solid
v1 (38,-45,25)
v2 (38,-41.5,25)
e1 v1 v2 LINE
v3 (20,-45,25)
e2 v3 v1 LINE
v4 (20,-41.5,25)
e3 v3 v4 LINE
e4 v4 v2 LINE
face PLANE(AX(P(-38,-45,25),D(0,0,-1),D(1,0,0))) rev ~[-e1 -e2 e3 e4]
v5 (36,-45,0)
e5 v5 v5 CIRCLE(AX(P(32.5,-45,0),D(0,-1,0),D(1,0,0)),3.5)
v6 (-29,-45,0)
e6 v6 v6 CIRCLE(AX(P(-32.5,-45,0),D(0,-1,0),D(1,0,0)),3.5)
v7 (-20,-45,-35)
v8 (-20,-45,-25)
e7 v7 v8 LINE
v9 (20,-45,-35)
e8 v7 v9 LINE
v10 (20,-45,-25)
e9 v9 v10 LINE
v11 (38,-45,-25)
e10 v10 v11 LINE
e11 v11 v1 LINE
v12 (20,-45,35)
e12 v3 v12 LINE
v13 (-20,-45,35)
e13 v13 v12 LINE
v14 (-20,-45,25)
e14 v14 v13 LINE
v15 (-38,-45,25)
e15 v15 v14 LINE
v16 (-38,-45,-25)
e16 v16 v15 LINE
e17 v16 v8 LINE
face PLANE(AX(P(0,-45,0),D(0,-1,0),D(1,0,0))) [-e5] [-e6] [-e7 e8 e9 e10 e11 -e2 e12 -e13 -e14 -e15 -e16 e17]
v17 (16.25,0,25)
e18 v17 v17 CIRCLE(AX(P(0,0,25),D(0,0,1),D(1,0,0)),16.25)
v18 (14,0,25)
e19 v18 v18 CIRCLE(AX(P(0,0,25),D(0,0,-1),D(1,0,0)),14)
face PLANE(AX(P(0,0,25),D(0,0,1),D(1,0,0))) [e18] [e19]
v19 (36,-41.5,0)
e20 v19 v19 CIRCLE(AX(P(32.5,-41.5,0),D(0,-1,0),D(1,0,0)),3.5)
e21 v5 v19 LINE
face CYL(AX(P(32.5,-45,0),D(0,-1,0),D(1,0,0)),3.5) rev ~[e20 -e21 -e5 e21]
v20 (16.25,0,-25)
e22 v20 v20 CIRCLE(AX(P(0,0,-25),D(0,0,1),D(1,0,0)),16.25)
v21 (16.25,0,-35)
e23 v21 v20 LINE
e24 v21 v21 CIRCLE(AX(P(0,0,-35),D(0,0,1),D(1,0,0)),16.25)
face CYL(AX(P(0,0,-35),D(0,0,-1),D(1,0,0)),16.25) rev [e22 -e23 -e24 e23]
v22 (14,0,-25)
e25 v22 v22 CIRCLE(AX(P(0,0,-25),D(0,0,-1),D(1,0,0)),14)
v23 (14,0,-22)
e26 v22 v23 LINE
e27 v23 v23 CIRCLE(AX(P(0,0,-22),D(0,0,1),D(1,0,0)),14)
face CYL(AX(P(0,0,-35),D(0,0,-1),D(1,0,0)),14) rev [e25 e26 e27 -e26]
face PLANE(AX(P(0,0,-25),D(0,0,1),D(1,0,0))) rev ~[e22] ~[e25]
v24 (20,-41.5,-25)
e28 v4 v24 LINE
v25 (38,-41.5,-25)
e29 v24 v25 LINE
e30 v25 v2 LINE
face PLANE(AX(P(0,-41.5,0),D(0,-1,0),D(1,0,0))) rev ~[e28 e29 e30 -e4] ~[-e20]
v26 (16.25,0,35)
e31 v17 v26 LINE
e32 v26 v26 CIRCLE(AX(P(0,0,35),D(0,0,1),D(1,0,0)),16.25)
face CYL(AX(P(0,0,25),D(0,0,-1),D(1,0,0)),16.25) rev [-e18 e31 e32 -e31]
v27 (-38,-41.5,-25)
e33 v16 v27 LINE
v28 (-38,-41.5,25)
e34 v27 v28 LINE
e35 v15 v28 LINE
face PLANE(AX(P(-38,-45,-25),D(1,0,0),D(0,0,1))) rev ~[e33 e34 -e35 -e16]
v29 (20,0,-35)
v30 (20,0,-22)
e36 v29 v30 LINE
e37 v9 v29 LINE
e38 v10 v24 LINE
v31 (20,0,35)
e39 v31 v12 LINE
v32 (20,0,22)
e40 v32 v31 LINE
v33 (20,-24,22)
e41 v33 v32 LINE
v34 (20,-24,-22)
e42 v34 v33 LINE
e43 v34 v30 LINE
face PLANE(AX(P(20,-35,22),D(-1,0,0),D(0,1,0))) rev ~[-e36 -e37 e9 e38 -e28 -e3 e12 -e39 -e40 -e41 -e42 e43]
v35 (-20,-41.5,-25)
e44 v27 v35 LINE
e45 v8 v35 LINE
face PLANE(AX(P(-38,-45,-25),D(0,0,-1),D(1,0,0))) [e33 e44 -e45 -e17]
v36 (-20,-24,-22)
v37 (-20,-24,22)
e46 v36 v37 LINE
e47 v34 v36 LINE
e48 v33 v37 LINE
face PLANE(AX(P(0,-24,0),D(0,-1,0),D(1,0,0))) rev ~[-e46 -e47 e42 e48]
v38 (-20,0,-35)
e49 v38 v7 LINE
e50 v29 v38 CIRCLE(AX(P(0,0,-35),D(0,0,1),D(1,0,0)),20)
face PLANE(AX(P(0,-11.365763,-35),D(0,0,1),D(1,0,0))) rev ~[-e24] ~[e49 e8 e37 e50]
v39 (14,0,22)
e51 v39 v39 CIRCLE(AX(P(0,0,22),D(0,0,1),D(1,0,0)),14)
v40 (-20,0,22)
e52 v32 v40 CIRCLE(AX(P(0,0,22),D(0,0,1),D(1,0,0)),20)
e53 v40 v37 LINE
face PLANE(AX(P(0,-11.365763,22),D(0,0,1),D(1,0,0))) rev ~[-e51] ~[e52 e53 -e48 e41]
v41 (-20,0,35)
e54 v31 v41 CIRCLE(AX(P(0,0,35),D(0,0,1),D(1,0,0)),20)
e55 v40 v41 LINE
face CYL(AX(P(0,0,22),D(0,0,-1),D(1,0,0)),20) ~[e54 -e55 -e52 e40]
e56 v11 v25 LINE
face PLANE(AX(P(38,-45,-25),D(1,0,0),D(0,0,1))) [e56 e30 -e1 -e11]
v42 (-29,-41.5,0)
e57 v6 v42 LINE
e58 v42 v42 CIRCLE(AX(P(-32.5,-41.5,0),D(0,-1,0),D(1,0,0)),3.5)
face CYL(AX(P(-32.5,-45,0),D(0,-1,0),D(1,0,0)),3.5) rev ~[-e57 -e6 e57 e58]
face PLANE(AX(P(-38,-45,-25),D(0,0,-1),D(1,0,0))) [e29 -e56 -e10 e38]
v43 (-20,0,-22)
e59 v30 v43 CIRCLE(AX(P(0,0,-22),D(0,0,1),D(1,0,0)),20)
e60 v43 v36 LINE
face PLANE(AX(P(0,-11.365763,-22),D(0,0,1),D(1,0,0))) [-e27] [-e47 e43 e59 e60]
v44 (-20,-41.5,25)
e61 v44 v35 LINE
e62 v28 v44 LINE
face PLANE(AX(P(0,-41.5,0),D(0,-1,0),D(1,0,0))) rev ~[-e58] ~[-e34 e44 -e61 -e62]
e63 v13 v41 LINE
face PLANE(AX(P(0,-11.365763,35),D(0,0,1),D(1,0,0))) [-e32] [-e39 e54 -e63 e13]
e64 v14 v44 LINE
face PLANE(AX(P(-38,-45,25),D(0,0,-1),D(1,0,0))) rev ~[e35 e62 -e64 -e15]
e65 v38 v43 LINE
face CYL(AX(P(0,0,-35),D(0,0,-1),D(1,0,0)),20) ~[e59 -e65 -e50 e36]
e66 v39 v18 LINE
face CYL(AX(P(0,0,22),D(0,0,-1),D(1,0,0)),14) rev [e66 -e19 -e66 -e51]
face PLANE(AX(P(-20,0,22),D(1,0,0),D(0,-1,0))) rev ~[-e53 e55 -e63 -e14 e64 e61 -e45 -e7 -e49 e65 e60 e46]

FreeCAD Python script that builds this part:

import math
import FreeCAD as App
import Part
import Sketcher
Q = App.Units.Quantity

doc = App.newDocument("Part")
params = doc.addObject("Spreadsheet::Sheet", "Params")
for row, (alias, value) in enumerate([
    ("sketch1_diameter", "7 mm"),
    ("sketch1_width", "76 mm"),
    ("sketch1_height", "50 mm"),
    ("pad1_length", "3.5 mm"),
    ("sketch2_diameter", "32.5 mm"),
    ("pad2_length", "10 mm"),
    ("sketch3_diameter", "28 mm"),
    ("sketch3_radius", "20 mm"),
    ("sketch3_height", "35 mm"),
    ("pad3_length", "13 mm"),
    ("sketch4_diameter", "32.5 mm"),
    ("pad4_length", "10 mm"),
    ("sketch5_diameter", "28 mm"),
    ("sketch5_radius", "20 mm"),
    ("sketch5_height", "35 mm"),
    ("pad5_length", "13 mm"),
    ("sketch6_width", "40 mm"),
    ("sketch6_height", "70 mm"),
    ("pad6_length", "21 mm"),
], start=1):
    params.set(f"A{row}", alias)
    params.set(f"B{row}", "=" + value)
    params.setAlias(f"B{row}", alias)

body = doc.addObject("PartDesign::Body", "Body")

# Sketch on XY plane
sketch1 = body.newObject("Sketcher::SketchObject", "Sketch")
sketch1.AttachmentSupport = (doc.getObject("XY_Plane"), [""])
sketch1.MapMode = "FlatFace"
sketch1.addGeometry([
    Part.LineSegment(App.Vector(-38, 25, 0), App.Vector(-38, -25, 0)),  # 0
    Part.LineSegment(App.Vector(-38, -25, 0), App.Vector(38, -25, 0)),  # 1
    Part.LineSegment(App.Vector(38, -25, 0), App.Vector(38, 25, 0)),  # 2
    Part.LineSegment(App.Vector(38, 25, 0), App.Vector(-38, 25, 0)),  # 3
    Part.Circle(App.Vector(-32.5, 0, 0), App.Vector(0, 0, 1), 3.5),  # 4
    Part.Circle(App.Vector(32.5, 0, 0), App.Vector(0, 0, 1), 3.5),  # 5
], False)
sketch1.addConstraint([
    Sketcher.Constraint("Coincident", 0, 2, 1, 1),
    Sketcher.Constraint("Coincident", 1, 2, 2, 1),
    Sketcher.Constraint("Coincident", 2, 2, 3, 1),
    Sketcher.Constraint("Coincident", 3, 2, 0, 1),
    Sketcher.Constraint("Vertical", 0),
    Sketcher.Constraint("Horizontal", 1),
    Sketcher.Constraint("Vertical", 2),
    Sketcher.Constraint("Horizontal", 3),
    Sketcher.Constraint("Equal", 4, 5),
    Sketcher.Constraint("Symmetric", 4, 3, 5, 3, -1, 1),
    Sketcher.Constraint("Symmetric", 0, 2, 2, 2, -1, 1),
    Sketcher.Constraint("PointOnObject", 4, 3, -1),
    Sketcher.Constraint("Diameter", 4, Q("7 mm")),
    Sketcher.Constraint("DistanceX", 1, 1, 1, 2, Q("76 mm")),
    Sketcher.Constraint("DistanceY", 0, 2, 0, 1, Q("50 mm")),
    Sketcher.Constraint("DistanceX", 4, 3, 5, 3, Q("65 mm")),
])
sketch1.setExpression("Constraints[12]", "Params.sketch1_diameter")
sketch1.setExpression("Constraints[13]", "Params.sketch1_width")
sketch1.setExpression("Constraints[14]", "Params.sketch1_height")
pad1 = body.newObject("PartDesign::Pad", "Pad")
pad1.Profile = sketch1
pad1.setExpression("Length", "Params.pad1_length")
pad1.Reversed = True
body2 = doc.addObject("PartDesign::Body", "Body001")
doc.recompute()

body.Placement = App.Placement(App.Vector(0, 0, 0), App.Rotation(App.Vector(1, 0, 0), 90))
boolean = body2.newObject("PartDesign::Boolean", "Boolean")
boolean.Type = "Fuse"
boolean.addObjects([body])
body3 = doc.addObject("PartDesign::Body", "Body002")
doc.recompute()

body2.Placement = App.Placement(App.Vector(0, -45, 0), App.Rotation(App.Vector(0, 0, 1), 0))
boolean2 = body3.newObject("PartDesign::Boolean", "Boolean001")
boolean2.Type = "Fuse"
boolean2.addObjects([body2])
body4 = doc.addObject("PartDesign::Body", "Body003")

# Sketch on XY plane
sketch2 = body4.newObject("Sketcher::SketchObject", "Sketch001")
sketch2.AttachmentSupport = (doc.getObject("XY_Plane003"), [""])
sketch2.MapMode = "FlatFace"
sketch2.addGeometry(Part.Circle(App.Vector(0, 0, 0), App.Vector(0, 0, 1), 16), False)
sketch2.addConstraint([
    Sketcher.Constraint("Coincident", 0, 3, -1, 1),
    Sketcher.Constraint("Diameter", 0, Q("32.5 mm")),
])
sketch2.setExpression("Constraints[1]", "Params.sketch2_diameter")
pad2 = body4.newObject("PartDesign::Pad", "Pad001")
pad2.Profile = sketch2
pad2.setExpression("Length", "Params.pad2_length")
body5 = doc.addObject("PartDesign::Body", "Body004")

# Sketch on XY plane
sketch3 = body5.newObject("Sketcher::SketchObject", "Sketch002")
sketch3.AttachmentSupport = (doc.getObject("XY_Plane004"), [""])
sketch3.MapMode = "FlatFace"
sketch3.addGeometry([
    Part.ArcOfCircle(Part.Circle(App.Vector(0, 0, 0), App.Vector(0, 0, 1), 20), math.radians(0), math.radians(180)),  # 0
    Part.LineSegment(App.Vector(-20, 0, 0), App.Vector(-20, -35, 0)),  # 1
    Part.LineSegment(App.Vector(-20, -35, 0), App.Vector(20, -35, 0)),  # 2
    Part.LineSegment(App.Vector(20, -35, 0), App.Vector(20, 0, 0)),  # 3
    Part.Circle(App.Vector(0, 0, 0), App.Vector(0, 0, 1), 14),  # 4
], False)
sketch3.addConstraint([
    Sketcher.Constraint("Tangent", 0, 2, 1, 1),
    Sketcher.Constraint("Coincident", 1, 2, 2, 1),
    Sketcher.Constraint("Coincident", 2, 2, 3, 1),
    Sketcher.Constraint("Tangent", 3, 2, 0, 1),
    Sketcher.Constraint("Vertical", 1),
    Sketcher.Constraint("Horizontal", 2),
    Sketcher.Constraint("Vertical", 3),
    Sketcher.Constraint("Coincident", 0, 3, -1, 1),
    Sketcher.Constraint("Coincident", 4, 3, -1, 1),
    Sketcher.Constraint("Diameter", 4, Q("28 mm")),
    Sketcher.Constraint("Radius", 0, Q("20 mm")),
    Sketcher.Constraint("DistanceY", 1, 2, 1, 1, Q("35 mm")),
])
sketch3.setExpression("Constraints[9]", "Params.sketch3_diameter")
sketch3.setExpression("Constraints[10]", "Params.sketch3_radius")
sketch3.setExpression("Constraints[11]", "Params.sketch3_height")
pad3 = body5.newObject("PartDesign::Pad", "Pad002")
pad3.Profile = sketch3
pad3.setExpression("Length", "Params.pad3_length")
doc.recompute()

boolean3 = body5.newObject("PartDesign::Boolean", "Boolean002")
boolean3.Type = "Cut"
boolean3.addObjects([body4])
body6 = doc.addObject("PartDesign::Body", "Body005")
doc.recompute()

body5.Placement = App.Placement(App.Vector(0, 0, -35), App.Rotation(App.Vector(0, 0, 1), 0))
boolean4 = body6.newObject("PartDesign::Boolean", "Boolean003")
boolean4.Type = "Fuse"
boolean4.addObjects([body5])
body7 = doc.addObject("PartDesign::Body", "Body006")

# Sketch on XY plane
sketch4 = body7.newObject("Sketcher::SketchObject", "Sketch003")
sketch4.AttachmentSupport = (doc.getObject("XY_Plane006"), [""])
sketch4.MapMode = "FlatFace"
sketch4.AttachmentOffset = App.Placement(App.Vector(0, 0, 3), App.Rotation())
sketch4.addGeometry(Part.Circle(App.Vector(0, 0, 0), App.Vector(0, 0, 1), 16), False)
sketch4.addConstraint([
    Sketcher.Constraint("Coincident", 0, 3, -1, 1),
    Sketcher.Constraint("Diameter", 0, Q("32.5 mm")),
])
sketch4.setExpression("Constraints[1]", "Params.sketch4_diameter")
pad4 = body7.newObject("PartDesign::Pad", "Pad003")
pad4.Profile = sketch4
pad4.setExpression("Length", "Params.pad4_length")
body8 = doc.addObject("PartDesign::Body", "Body007")

# Sketch on XY plane
sketch5 = body8.newObject("Sketcher::SketchObject", "Sketch004")
sketch5.AttachmentSupport = (doc.getObject("XY_Plane007"), [""])
sketch5.MapMode = "FlatFace"
sketch5.addGeometry([
    Part.ArcOfCircle(Part.Circle(App.Vector(0, 0, 0), App.Vector(0, 0, 1), 20), math.radians(0), math.radians(180)),  # 0
    Part.LineSegment(App.Vector(-20, 0, 0), App.Vector(-20, -35, 0)),  # 1
    Part.LineSegment(App.Vector(-20, -35, 0), App.Vector(20, -35, 0)),  # 2
    Part.LineSegment(App.Vector(20, -35, 0), App.Vector(20, 0, 0)),  # 3
    Part.Circle(App.Vector(0, 0, 0), App.Vector(0, 0, 1), 14),  # 4
], False)
sketch5.addConstraint([
    Sketcher.Constraint("Tangent", 0, 2, 1, 1),
    Sketcher.Constraint("Coincident", 1, 2, 2, 1),
    Sketcher.Constraint("Coincident", 2, 2, 3, 1),
    Sketcher.Constraint("Tangent", 3, 2, 0, 1),
    Sketcher.Constraint("Vertical", 1),
    Sketcher.Constraint("Horizontal", 2),
    Sketcher.Constraint("Vertical", 3),
    Sketcher.Constraint("Coincident", 0, 3, -1, 1),
    Sketcher.Constraint("Coincident", 4, 3, -1, 1),
    Sketcher.Constraint("Diameter", 4, Q("28 mm")),
    Sketcher.Constraint("Radius", 0, Q("20 mm")),
    Sketcher.Constraint("DistanceY", 1, 2, 1, 1, Q("35 mm")),
])
sketch5.setExpression("Constraints[9]", "Params.sketch5_diameter")
sketch5.setExpression("Constraints[10]", "Params.sketch5_radius")
sketch5.setExpression("Constraints[11]", "Params.sketch5_height")
pad5 = body8.newObject("PartDesign::Pad", "Pad004")
pad5.Profile = sketch5
pad5.setExpression("Length", "Params.pad5_length")
doc.recompute()

boolean5 = body8.newObject("PartDesign::Boolean", "Boolean004")
boolean5.Type = "Cut"
boolean5.addObjects([body7])
body9 = doc.addObject("PartDesign::Body", "Body008")
doc.recompute()

body8.Placement = App.Placement(App.Vector(0, 0, 22), App.Rotation(App.Vector(0, 0, 1), 0))
boolean6 = body9.newObject("PartDesign::Boolean", "Boolean005")
boolean6.Type = "Fuse"
boolean6.addObjects([body8])
body10 = doc.addObject("PartDesign::Body", "Body009")

# Sketch on XY plane
sketch6 = body10.newObject("Sketcher::SketchObject", "Sketch005")
sketch6.AttachmentSupport = (doc.getObject("XY_Plane009"), [""])
sketch6.MapMode = "FlatFace"
sketch6.addGeometry([
    Part.LineSegment(App.Vector(-20, 35, 0), App.Vector(-20, -35, 0)),
    Part.LineSegment(App.Vector(-20, -35, 0), App.Vector(20, -35, 0)),
    Part.LineSegment(App.Vector(20, -35, 0), App.Vector(20, 35, 0)),
    Part.LineSegment(App.Vector(20, 35, 0), App.Vector(-20, 35, 0)),
], False)
sketch6.addConstraint([
    Sketcher.Constraint("Coincident", 0, 2, 1, 1),
    Sketcher.Constraint("Coincident", 1, 2, 2, 1),
    Sketcher.Constraint("Coincident", 2, 2, 3, 1),
    Sketcher.Constraint("Coincident", 3, 2, 0, 1),
    Sketcher.Constraint("Vertical", 0),
    Sketcher.Constraint("Horizontal", 1),
    Sketcher.Constraint("Vertical", 2),
    Sketcher.Constraint("Horizontal", 3),
    Sketcher.Constraint("Symmetric", 0, 2, 2, 2, -1, 1),
    Sketcher.Constraint("DistanceX", 1, 1, 1, 2, Q("40 mm")),
    Sketcher.Constraint("DistanceY", 0, 2, 0, 1, Q("70 mm")),
])
sketch6.setExpression("Constraints[9]", "Params.sketch6_width")
sketch6.setExpression("Constraints[10]", "Params.sketch6_height")
pad6 = body10.newObject("PartDesign::Pad", "Pad005")
pad6.Profile = sketch6
pad6.setExpression("Length", "Params.pad6_length")
pad6.Reversed = True
body11 = doc.addObject("PartDesign::Body", "Body010")
doc.recompute()

body10.Placement = App.Placement(App.Vector(0, 0, 0), App.Rotation(App.Vector(1, 0, 0), 90))
boolean7 = body11.newObject("PartDesign::Boolean", "Boolean006")
boolean7.Type = "Fuse"
boolean7.addObjects([body10])
body12 = doc.addObject("PartDesign::Body", "Body011")
doc.recompute()

body11.Placement = App.Placement(App.Vector(0, -45, 0), App.Rotation(App.Vector(0, 0, 1), 0))
boolean8 = body12.newObject("PartDesign::Boolean", "Boolean007")
boolean8.Type = "Fuse"
boolean8.addObjects([body11])
doc.recompute()

boolean9 = body12.newObject("PartDesign::Boolean", "Boolean008")
boolean9.Type = "Fuse"
boolean9.addObjects([body3])
doc.recompute()

boolean10 = body12.newObject("PartDesign::Boolean", "Boolean009")
boolean10.Type = "Fuse"
boolean10.addObjects([body6])
doc.recompute()

boolean11 = body12.newObject("PartDesign::Boolean", "Boolean010")
boolean11.Type = "Fuse"
boolean11.addObjects([body9])

doc.recompute()
